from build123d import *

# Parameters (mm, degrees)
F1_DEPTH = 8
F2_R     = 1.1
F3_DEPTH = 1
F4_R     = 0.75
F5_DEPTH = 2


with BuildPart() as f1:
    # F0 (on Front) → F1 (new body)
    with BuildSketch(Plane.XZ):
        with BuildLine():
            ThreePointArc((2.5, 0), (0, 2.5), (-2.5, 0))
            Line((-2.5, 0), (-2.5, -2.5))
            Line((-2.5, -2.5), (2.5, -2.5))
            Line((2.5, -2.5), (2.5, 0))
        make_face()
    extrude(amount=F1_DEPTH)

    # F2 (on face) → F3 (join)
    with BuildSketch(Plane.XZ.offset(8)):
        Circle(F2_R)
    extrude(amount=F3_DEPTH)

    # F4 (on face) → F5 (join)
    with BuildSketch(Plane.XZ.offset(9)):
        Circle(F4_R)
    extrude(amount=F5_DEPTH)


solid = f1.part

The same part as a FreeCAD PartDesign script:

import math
import FreeCAD as App
import Part
import Sketcher

doc = App.newDocument("Part")
body = doc.addObject("PartDesign::Body", "Body")

sketch1 = body.newObject("Sketcher::SketchObject", "Sketch")
sketch1.AttachmentSupport = (doc.getObject("XZ_Plane"), [""])
sketch1.MapMode = "FlatFace"
sketch1.addGeometry([
    Part.ArcOfCircle(Part.Circle(App.Vector(0, 0, 0), App.Vector(0, 0, 1), 2.5), math.radians(0), math.radians(180)),
    Part.LineSegment(App.Vector(-2.5, 0, 0), App.Vector(-2.5, -2.5, 0)),
    Part.LineSegment(App.Vector(-2.5, -2.5, 0), App.Vector(2.5, -2.5, 0)),
    Part.LineSegment(App.Vector(2.5, -2.5, 0), App.Vector(2.5, 0, 0)),
], False)
sketch1.addConstraint([
    Sketcher.Constraint("Tangent", 0, 2, 1, 1),
    Sketcher.Constraint("Coincident", 1, 2, 2, 1),
    Sketcher.Constraint("Coincident", 2, 2, 3, 1),
    Sketcher.Constraint("Tangent", 3, 2, 0, 1),
    Sketcher.Constraint("Vertical", 1),
    Sketcher.Constraint("Horizontal", 2),
    Sketcher.Constraint("Vertical", 3),
    Sketcher.Constraint("Coincident", 0, 3, -1, 1),
    Sketcher.Constraint("Radius", 0, 2.5),
    Sketcher.Constraint("DistanceY", 1, 2, 1, 1, 2.5),
])
pad1 = body.newObject("PartDesign::Pad", "Pad")
pad1.Profile = sketch1
pad1.Length = 8

sketch2 = body.newObject("Sketcher::SketchObject", "Sketch001")
sketch2.AttachmentSupport = (doc.getObject("XZ_Plane"), [""])
sketch2.MapMode = "FlatFace"
sketch2.AttachmentOffset = App.Placement(App.Vector(0, 0, 8), App.Rotation())
sketch2.addGeometry(Part.Circle(App.Vector(0, 0, 0), App.Vector(0, 0, 1), 1.1), False)
sketch2.addConstraint([
    Sketcher.Constraint("Coincident", 0, 3, -1, 1),
    Sketcher.Constraint("Diameter", 0, 2.2),
])
pad2 = body.newObject("PartDesign::Pad", "Pad001")
pad2.Profile = sketch2
pad2.Length = 1

sketch3 = body.newObject("Sketcher::SketchObject", "Sketch002")
sketch3.AttachmentSupport = (doc.getObject("XZ_Plane"), [""])
sketch3.MapMode = "FlatFace"
sketch3.AttachmentOffset = App.Placement(App.Vector(0, 0, 9), App.Rotation())
sketch3.addGeometry(Part.Circle(App.Vector(0, 0, 0), App.Vector(0, 0, 1), 0.75), False)
sketch3.addConstraint([
    Sketcher.Constraint("Coincident", 0, 3, -1, 1),
    Sketcher.Constraint("Diameter", 0, 1.5),
])
pad3 = body.newObject("PartDesign::Pad", "Pad002")
pad3.Profile = sketch3
pad3.Length = 2

doc.recompute()
